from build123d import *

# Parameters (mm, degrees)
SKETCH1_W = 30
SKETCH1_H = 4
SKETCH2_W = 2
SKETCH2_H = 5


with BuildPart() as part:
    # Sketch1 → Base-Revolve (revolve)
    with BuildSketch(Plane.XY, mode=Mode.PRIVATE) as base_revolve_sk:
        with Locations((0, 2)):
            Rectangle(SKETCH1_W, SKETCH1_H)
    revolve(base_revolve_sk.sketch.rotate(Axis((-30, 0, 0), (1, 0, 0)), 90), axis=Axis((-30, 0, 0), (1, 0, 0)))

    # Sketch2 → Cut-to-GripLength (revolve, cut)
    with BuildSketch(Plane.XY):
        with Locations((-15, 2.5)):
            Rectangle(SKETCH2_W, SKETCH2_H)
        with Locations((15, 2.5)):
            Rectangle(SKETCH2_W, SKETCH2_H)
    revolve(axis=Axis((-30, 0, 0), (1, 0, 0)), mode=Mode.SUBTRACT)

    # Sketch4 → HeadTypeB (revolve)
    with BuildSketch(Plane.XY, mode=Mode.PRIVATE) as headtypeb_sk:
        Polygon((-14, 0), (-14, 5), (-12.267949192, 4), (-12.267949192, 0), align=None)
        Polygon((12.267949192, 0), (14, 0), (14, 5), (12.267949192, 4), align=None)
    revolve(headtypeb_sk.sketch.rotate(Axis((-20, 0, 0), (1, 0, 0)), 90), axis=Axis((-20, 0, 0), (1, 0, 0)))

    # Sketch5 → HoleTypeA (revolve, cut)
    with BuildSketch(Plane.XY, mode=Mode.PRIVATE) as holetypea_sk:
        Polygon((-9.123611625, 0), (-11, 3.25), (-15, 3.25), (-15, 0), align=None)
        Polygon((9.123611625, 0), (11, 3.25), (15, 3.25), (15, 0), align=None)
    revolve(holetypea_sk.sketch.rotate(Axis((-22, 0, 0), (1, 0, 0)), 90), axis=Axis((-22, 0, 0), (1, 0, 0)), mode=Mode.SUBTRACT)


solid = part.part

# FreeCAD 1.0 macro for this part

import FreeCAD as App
import Part
import Sketcher
from FreeCAD import Vector
Q = App.Units.Quantity

doc = App.newDocument("Part")
body = doc.addObject("PartDesign::Body", "Body")

sketch1 = body.newObject("Sketcher::SketchObject", "Sketch")
sketch1.AttachmentSupport = (doc.getObject("XY_Plane"), [""])
sketch1.MapMode = "FlatFace"
sketch1.addGeometry(Part.LineSegment(Vector(-15, 4, 0), Vector(-15, 0, 0)), False)
sketch1.addGeometry(Part.LineSegment(Vector(-15, 0, 0), Vector(15, 0, 0)), False)
sketch1.addGeometry(Part.LineSegment(Vector(15, 0, 0), Vector(15, 4, 0)), False)
sketch1.addGeometry(Part.LineSegment(Vector(15, 4, 0), Vector(-15, 4, 0)), False)
sketch1.addConstraint(Sketcher.Constraint("Coincident", 0, 2, 1, 1))
sketch1.addConstraint(Sketcher.Constraint("Coincident", 1, 2, 2, 1))
sketch1.addConstraint(Sketcher.Constraint("Coincident", 2, 2, 3, 1))
sketch1.addConstraint(Sketcher.Constraint("Coincident", 3, 2, 0, 1))
sketch1.addConstraint(Sketcher.Constraint("Vertical", 0))
sketch1.addConstraint(Sketcher.Constraint("Horizontal", 1))
sketch1.addConstraint(Sketcher.Constraint("Vertical", 2))
sketch1.addConstraint(Sketcher.Constraint("Horizontal", 3))
sketch1.addConstraint(Sketcher.Constraint("Symmetric", 0, 2, 1, 2, -1, 1))
sketch1.addConstraint(Sketcher.Constraint("DistanceX", 1, 1, 1, 2, 30.0))
sketch1.addConstraint(Sketcher.Constraint("DistanceY", 0, 2, 0, 1, 4.0))
revolution = body.newObject("PartDesign::Revolution", "Revolution")
revolution.Profile = sketch1
revolution.ReferenceAxis = (sketch1, ["H_Axis"])
revolution.Angle = 360

sketch2 = body.newObject("Sketcher::SketchObject", "Sketch001")
sketch2.AttachmentSupport = (doc.getObject("XY_Plane"), [""])
sketch2.MapMode = "FlatFace"
sketch2.addGeometry(Part.LineSegment(Vector(-16, 5, 0), Vector(-16, 0, 0)), False)
sketch2.addGeometry(Part.LineSegment(Vector(-16, 0, 0), Vector(-14, 0, 0)), False)
sketch2.addGeometry(Part.LineSegment(Vector(-14, 0, 0), Vector(-14, 5, 0)), False)
sketch2.addGeometry(Part.LineSegment(Vector(-14, 5, 0), Vector(-16, 5, 0)), False)
sketch2.addGeometry(Part.LineSegment(Vector(14, 5, 0), Vector(14, 0, 0)), False)
sketch2.addGeometry(Part.LineSegment(Vector(14, 0, 0), Vector(16, 0, 0)), False)
sketch2.addGeometry(Part.LineSegment(Vector(16, 0, 0), Vector(16, 5, 0)), False)
sketch2.addGeometry(Part.LineSegment(Vector(16, 5, 0), Vector(14, 5, 0)), False)
sketch2.addConstraint(Sketcher.Constraint("Coincident", 0, 2, 1, 1))
sketch2.addConstraint(Sketcher.Constraint("Coincident", 1, 2, 2, 1))
sketch2.addConstraint(Sketcher.Constraint("Coincident", 2, 2, 3, 1))
sketch2.addConstraint(Sketcher.Constraint("Coincident", 3, 2, 0, 1))
sketch2.addConstraint(Sketcher.Constraint("Coincident", 4, 2, 5, 1))
sketch2.addConstraint(Sketcher.Constraint("Coincident", 5, 2, 6, 1))
sketch2.addConstraint(Sketcher.Constraint("Coincident", 6, 2, 7, 1))
sketch2.addConstraint(Sketcher.Constraint("Coincident", 7, 2, 4, 1))
sketch2.addConstraint(Sketcher.Constraint("Vertical", 0))
sketch2.addConstraint(Sketcher.Constraint("Horizontal", 1))
sketch2.addConstraint(Sketcher.Constraint("Vertical", 2))
sketch2.addConstraint(Sketcher.Constraint("Horizontal", 3))
sketch2.addConstraint(Sketcher.Constraint("Vertical", 4))
sketch2.addConstraint(Sketcher.Constraint("Horizontal", 5))
sketch2.addConstraint(Sketcher.Constraint("Vertical", 6))
sketch2.addConstraint(Sketcher.Constraint("Horizontal", 7))
sketch2.addConstraint(Sketcher.Constraint("Symmetric", 1, 2, 4, 2, -1, 1))
sketch2.addConstraint(Sketcher.Constraint("Symmetric", 0, 2, 5, 2, -2))
sketch2.addConstraint(Sketcher.Constraint("Horizontal", 3, 2, 6, 2))
sketch2.addConstraint(Sketcher.Constraint("DistanceX", 1, 1, 1, 2, 2.0))
sketch2.addConstraint(Sketcher.Constraint("DistanceY", 0, 2, 0, 1, 5.0))
sketch2.addConstraint(Sketcher.Constraint("DistanceX", 0, 2, -1, 1, 16.0))
groove = body.newObject("PartDesign::Groove", "Groove")
groove.Profile = sketch2
groove.ReferenceAxis = (sketch2, ["H_Axis"])
groove.Angle = 360

sketch3 = body.newObject("Sketcher::SketchObject", "Sketch002")
sketch3.AttachmentSupport = (doc.getObject("XY_Plane"), [""])
sketch3.MapMode = "FlatFace"
sketch3.addGeometry(Part.LineSegment(Vector(-14, 5, 0), Vector(-14, 0, 0)), False)
sketch3.addGeometry(Part.LineSegment(Vector(-14, 0, 0), Vector(-12.3, 0, 0)), False)
sketch3.addGeometry(Part.LineSegment(Vector(-12.3, 0, 0), Vector(-12.3, 4, 0)), False)
sketch3.addGeometry(Part.LineSegment(Vector(-12.3, 4, 0), Vector(-14, 5, 0)), False)
sketch3.addGeometry(Part.LineSegment(Vector(12.3, 0, 0), Vector(14, 0, 0)), False)
sketch3.addGeometry(Part.LineSegment(Vector(14, 0, 0), Vector(14, 5, 0)), False)
sketch3.addGeometry(Part.LineSegment(Vector(14, 5, 0), Vector(12.3, 4, 0)), False)
sketch3.addGeometry(Part.LineSegment(Vector(12.3, 4, 0), Vector(12.3, 0, 0)), False)
sketch3.addConstraint(Sketcher.Constraint("Coincident", 0, 2, 1, 1))
sketch3.addConstraint(Sketcher.Constraint("Coincident", 1, 2, 2, 1))
sketch3.addConstraint(Sketcher.Constraint("Coincident", 2, 2, 3, 1))
sketch3.addConstraint(Sketcher.Constraint("Coincident", 3, 2, 0, 1))
sketch3.addConstraint(Sketcher.Constraint("Coincident", 4, 2, 5, 1))
sketch3.addConstraint(Sketcher.Constraint("Coincident", 5, 2, 6, 1))
sketch3.addConstraint(Sketcher.Constraint("Coincident", 6, 2, 7, 1))
sketch3.addConstraint(Sketcher.Constraint("Coincident", 7, 2, 4, 1))
sketch3.addConstraint(Sketcher.Constraint("Vertical", 0))
sketch3.addConstraint(Sketcher.Constraint("Horizontal", 1))
sketch3.addConstraint(Sketcher.Constraint("Vertical", 2))
sketch3.addConstraint(Sketcher.Constraint("Horizontal", 4))
sketch3.addConstraint(Sketcher.Constraint("Vertical", 5))
sketch3.addConstraint(Sketcher.Constraint("Vertical", 7))
sketch3.addConstraint(Sketcher.Constraint("Symmetric", 0, 2, 4, 2, -1, 1))
sketch3.addConstraint(Sketcher.Constraint("Symmetric", 2, 2, 6, 2, -2))
sketch3.addConstraint(Sketcher.Constraint("PointOnObject", 0, 2, -1))
sketch3.addConstraint(Sketcher.Constraint("Horizontal", 3, 2, 5, 2))
sketch3.addConstraint(Sketcher.Constraint("DistanceY", 0, 2, 0, 1, 5.0))
sketch3.addConstraint(Sketcher.Constraint("DistanceY", 2, 1, 2, 2, 4.0))
sketch3.addConstraint(Sketcher.Constraint("Angle", 3, Q("150 deg")))
sketch3.addConstraint(Sketcher.Constraint("DistanceX", 0, 2, -1, 1, 14.0))
revolution2 = body.newObject("PartDesign::Revolution", "Revolution001")
revolution2.Profile = sketch3
revolution2.ReferenceAxis = (sketch3, ["H_Axis"])
revolution2.Angle = 360

sketch4 = body.newObject("Sketcher::SketchObject", "Sketch003")
sketch4.AttachmentSupport = (doc.getObject("XY_Plane"), [""])
sketch4.MapMode = "FlatFace"
sketch4.addGeometry(Part.LineSegment(Vector(-9.1, 0, 0), Vector(-11, 3.2, 0)), False)
sketch4.addGeometry(Part.LineSegment(Vector(-11, 3.2, 0), Vector(-15, 3.2, 0)), False)
sketch4.addGeometry(Part.LineSegment(Vector(-15, 3.2, 0), Vector(-15, 0, 0)), False)
sketch4.addGeometry(Part.LineSegment(Vector(-15, 0, 0), Vector(-9.1, 0, 0)), False)
sketch4.addGeometry(Part.LineSegment(Vector(11, 3.2, 0), Vector(9.1, 0, 0)), False)
sketch4.addGeometry(Part.LineSegment(Vector(9.1, 0, 0), Vector(15, 0, 0)), False)
sketch4.addGeometry(Part.LineSegment(Vector(15, 0, 0), Vector(15, 3.2, 0)), False)
sketch4.addGeometry(Part.LineSegment(Vector(15, 3.2, 0), Vector(11, 3.2, 0)), False)
sketch4.addConstraint(Sketcher.Constraint("Coincident", 0, 2, 1, 1))
sketch4.addConstraint(Sketcher.Constraint("Coincident", 1, 2, 2, 1))
sketch4.addConstraint(Sketcher.Constraint("Coincident", 2, 2, 3, 1))
sketch4.addConstraint(Sketcher.Constraint("Coincident", 3, 2, 0, 1))
sketch4.addConstraint(Sketcher.Constraint("Coincident", 4, 2, 5, 1))
sketch4.addConstraint(Sketcher.Constraint("Coincident", 5, 2, 6, 1))
sketch4.addConstraint(Sketcher.Constraint("Coincident", 6, 2, 7, 1))
sketch4.addConstraint(Sketcher.Constraint("Coincident", 7, 2, 4, 1))
sketch4.addConstraint(Sketcher.Constraint("Horizontal", 1))
sketch4.addConstraint(Sketcher.Constraint("Vertical", 2))
sketch4.addConstraint(Sketcher.Constraint("Horizontal", 3))
sketch4.addConstraint(Sketcher.Constraint("Horizontal", 5))
sketch4.addConstraint(Sketcher.Constraint("Vertical", 6))
sketch4.addConstraint(Sketcher.Constraint("Horizontal", 7))
sketch4.addConstraint(Sketcher.Constraint("Symmetric", 3, 2, 4, 2, -1, 1))
sketch4.addConstraint(Sketcher.Constraint("Symmetric", 2, 2, 5, 2, -2))
sketch4.addConstraint(Sketcher.Constraint("Symmetric", 0, 2, 7, 2, -2))
sketch4.addConstraint(Sketcher.Constraint("DistanceX", 1, 2, 1, 1, 4.0))
sketch4.addConstraint(Sketcher.Constraint("Angle", 0, Q("120 deg")))
sketch4.addConstraint(Sketcher.Constraint("DistanceX", 0, 2, -1, 1, 11.0))
sketch4.addConstraint(Sketcher.Constraint("DistanceY", 2, 2, 2, 1, 3.25))
groove2 = body.newObject("PartDesign::Groove", "Groove001")
groove2.Profile = sketch4
groove2.ReferenceAxis = (sketch4, ["H_Axis"])
groove2.Angle = 360

doc.recompute()
